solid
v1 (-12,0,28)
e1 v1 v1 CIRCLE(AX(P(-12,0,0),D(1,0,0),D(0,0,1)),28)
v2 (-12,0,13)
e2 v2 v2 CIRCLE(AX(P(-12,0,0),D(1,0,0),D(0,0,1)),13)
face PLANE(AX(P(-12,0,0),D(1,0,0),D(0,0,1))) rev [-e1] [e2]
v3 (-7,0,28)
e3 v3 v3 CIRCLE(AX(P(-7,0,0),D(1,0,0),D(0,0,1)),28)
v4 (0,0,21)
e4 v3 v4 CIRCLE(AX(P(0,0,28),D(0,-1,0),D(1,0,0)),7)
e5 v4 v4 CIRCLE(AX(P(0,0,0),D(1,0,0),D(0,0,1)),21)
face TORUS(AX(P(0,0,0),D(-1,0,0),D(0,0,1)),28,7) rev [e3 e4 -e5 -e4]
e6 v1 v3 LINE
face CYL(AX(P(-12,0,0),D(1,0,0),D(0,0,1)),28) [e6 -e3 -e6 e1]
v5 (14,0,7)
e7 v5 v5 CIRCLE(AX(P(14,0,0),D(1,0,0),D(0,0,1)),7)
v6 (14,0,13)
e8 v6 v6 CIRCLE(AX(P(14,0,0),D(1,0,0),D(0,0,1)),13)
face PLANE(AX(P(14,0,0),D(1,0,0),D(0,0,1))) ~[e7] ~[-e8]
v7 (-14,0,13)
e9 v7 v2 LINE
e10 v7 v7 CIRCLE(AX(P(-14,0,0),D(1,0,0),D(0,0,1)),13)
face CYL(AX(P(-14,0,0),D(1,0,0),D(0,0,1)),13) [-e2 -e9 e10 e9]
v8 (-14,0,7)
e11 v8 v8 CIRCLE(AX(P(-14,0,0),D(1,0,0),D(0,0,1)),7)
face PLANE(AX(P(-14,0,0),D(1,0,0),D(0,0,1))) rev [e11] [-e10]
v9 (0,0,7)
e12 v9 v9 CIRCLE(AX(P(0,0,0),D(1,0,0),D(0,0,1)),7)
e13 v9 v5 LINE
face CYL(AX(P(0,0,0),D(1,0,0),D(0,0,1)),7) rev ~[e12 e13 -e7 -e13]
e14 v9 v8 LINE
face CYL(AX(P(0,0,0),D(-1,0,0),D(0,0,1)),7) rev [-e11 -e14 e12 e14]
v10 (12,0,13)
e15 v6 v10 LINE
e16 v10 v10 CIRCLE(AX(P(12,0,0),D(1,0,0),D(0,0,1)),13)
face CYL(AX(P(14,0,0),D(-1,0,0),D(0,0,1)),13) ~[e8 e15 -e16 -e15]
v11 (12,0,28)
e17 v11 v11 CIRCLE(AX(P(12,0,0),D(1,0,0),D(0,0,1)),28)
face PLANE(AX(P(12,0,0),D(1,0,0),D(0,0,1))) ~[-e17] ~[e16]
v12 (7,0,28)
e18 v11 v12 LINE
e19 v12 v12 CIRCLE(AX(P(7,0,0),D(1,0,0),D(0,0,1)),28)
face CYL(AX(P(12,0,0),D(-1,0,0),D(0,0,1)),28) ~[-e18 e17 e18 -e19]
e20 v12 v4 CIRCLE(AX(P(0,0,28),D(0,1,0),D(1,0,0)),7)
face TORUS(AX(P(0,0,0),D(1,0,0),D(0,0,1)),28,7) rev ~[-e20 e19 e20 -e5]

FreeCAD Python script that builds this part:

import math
import FreeCAD as App
import Part
import Sketcher
from FreeCAD import Vector

doc = App.newDocument("Part")
params = doc.addObject("Spreadsheet::Sheet", "Params")
for row, (alias, value) in enumerate([
    ("sketch1_radius", "7 mm"),
    ("sketch1_width", "5 mm"),
    ("sketch1_width2", "2 mm"),
    ("sketch1_height", "15 mm"),
    ("sketch1_height2", "6 mm"),
    ("revolution_angle", "360 deg"),
], start=1):
    params.set(f"A{row}", alias)
    params.set(f"B{row}", "=" + value)
    params.setAlias(f"B{row}", alias)

body = doc.addObject("PartDesign::Body", "Body")

# Sketch on XZ plane
sketch1 = body.newObject("Sketcher::SketchObject", "Sketch")
sketch1.AttachmentSupport = (doc.getObject("XZ_Plane"), [""])
sketch1.MapMode = "FlatFace"
sketch1.addGeometry(Part.LineSegment(Vector(-7, 28, 0), Vector(-12, 28, 0)), False)
sketch1.addGeometry(Part.LineSegment(Vector(-12, 28, 0), Vector(-12, 13, 0)), False)
sketch1.addGeometry(Part.LineSegment(Vector(-12, 13, 0), Vector(-14, 13, 0)), False)
sketch1.addGeometry(Part.LineSegment(Vector(-14, 13, 0), Vector(-14, 7, 0)), False)
sketch1.addGeometry(Part.LineSegment(Vector(-14, 7, 0), Vector(14, 7, 0)), False)
sketch1.addGeometry(Part.LineSegment(Vector(14, 7, 0), Vector(14, 13, 0)), False)
sketch1.addGeometry(Part.LineSegment(Vector(14, 13, 0), Vector(12, 13, 0)), False)
sketch1.addGeometry(Part.LineSegment(Vector(12, 13, 0), Vector(12, 28, 0)), False)
sketch1.addGeometry(Part.LineSegment(Vector(12, 28, 0), Vector(7, 28, 0)), False)
sketch1.addGeometry(Part.ArcOfCircle(Part.Circle(Vector(0, 28, 0), Vector(0, 0, 1), 7), math.radians(180), math.radians(360)), False)
sketch1.addConstraint(Sketcher.Constraint("Coincident", 0, 2, 1, 1))
sketch1.addConstraint(Sketcher.Constraint("Coincident", 1, 2, 2, 1))
sketch1.addConstraint(Sketcher.Constraint("Coincident", 2, 2, 3, 1))
sketch1.addConstraint(Sketcher.Constraint("Coincident", 3, 2, 4, 1))
sketch1.addConstraint(Sketcher.Constraint("Coincident", 4, 2, 5, 1))
sketch1.addConstraint(Sketcher.Constraint("Coincident", 5, 2, 6, 1))
sketch1.addConstraint(Sketcher.Constraint("Coincident", 6, 2, 7, 1))
sketch1.addConstraint(Sketcher.Constraint("Coincident", 7, 2, 8, 1))
sketch1.addConstraint(Sketcher.Constraint("Coincident", 8, 2, 9, 2))
sketch1.addConstraint(Sketcher.Constraint("Coincident", 9, 1, 0, 1))
sketch1.addConstraint(Sketcher.Constraint("Horizontal", 0))
sketch1.addConstraint(Sketcher.Constraint("Vertical", 1))
sketch1.addConstraint(Sketcher.Constraint("Horizontal", 2))
sketch1.addConstraint(Sketcher.Constraint("Vertical", 3))
sketch1.addConstraint(Sketcher.Constraint("Horizontal", 4))
sketch1.addConstraint(Sketcher.Constraint("Vertical", 5))
sketch1.addConstraint(Sketcher.Constraint("Horizontal", 6))
sketch1.addConstraint(Sketcher.Constraint("Vertical", 7))
sketch1.addConstraint(Sketcher.Constraint("Horizontal", 8))
sketch1.addConstraint(Sketcher.Constraint("Symmetric", 2, 2, 5, 2, -2))
sketch1.addConstraint(Sketcher.Constraint("Symmetric", 0, 2, 7, 2, -2))
sketch1.addConstraint(Sketcher.Constraint("PointOnObject", 9, 3, -2))
sketch1.addConstraint(Sketcher.Constraint("Horizontal", 9, 3, 0, 2))
sketch1.addConstraint(Sketcher.Constraint("Radius", 9, 7.0))
sketch1.addConstraint(Sketcher.Constraint("DistanceX", 0, 2, 0, 1, 5.0))
sketch1.addConstraint(Sketcher.Constraint("DistanceX", 2, 2, 2, 1, 2.0))
sketch1.addConstraint(Sketcher.Constraint("DistanceY", 1, 2, 1, 1, 15.0))
sketch1.addConstraint(Sketcher.Constraint("DistanceY", 3, 2, 3, 1, 6.0))
sketch1.addConstraint(Sketcher.Constraint("DistanceY", -1, 1, 9, 3, 28.0))
sketch1.setExpression("Constraints[23]", "Params.sketch1_radius")
sketch1.setExpression("Constraints[24]", "Params.sketch1_width")
sketch1.setExpression("Constraints[25]", "Params.sketch1_width2")
sketch1.setExpression("Constraints[26]", "Params.sketch1_height")
sketch1.setExpression("Constraints[27]", "Params.sketch1_height2")
revolution = body.newObject("PartDesign::Revolution", "Revolution")
revolution.Profile = sketch1
revolution.ReferenceAxis = (sketch1, ["H_Axis"])
revolution.setExpression("Angle", "Params.revolution_angle")

doc.recompute()
